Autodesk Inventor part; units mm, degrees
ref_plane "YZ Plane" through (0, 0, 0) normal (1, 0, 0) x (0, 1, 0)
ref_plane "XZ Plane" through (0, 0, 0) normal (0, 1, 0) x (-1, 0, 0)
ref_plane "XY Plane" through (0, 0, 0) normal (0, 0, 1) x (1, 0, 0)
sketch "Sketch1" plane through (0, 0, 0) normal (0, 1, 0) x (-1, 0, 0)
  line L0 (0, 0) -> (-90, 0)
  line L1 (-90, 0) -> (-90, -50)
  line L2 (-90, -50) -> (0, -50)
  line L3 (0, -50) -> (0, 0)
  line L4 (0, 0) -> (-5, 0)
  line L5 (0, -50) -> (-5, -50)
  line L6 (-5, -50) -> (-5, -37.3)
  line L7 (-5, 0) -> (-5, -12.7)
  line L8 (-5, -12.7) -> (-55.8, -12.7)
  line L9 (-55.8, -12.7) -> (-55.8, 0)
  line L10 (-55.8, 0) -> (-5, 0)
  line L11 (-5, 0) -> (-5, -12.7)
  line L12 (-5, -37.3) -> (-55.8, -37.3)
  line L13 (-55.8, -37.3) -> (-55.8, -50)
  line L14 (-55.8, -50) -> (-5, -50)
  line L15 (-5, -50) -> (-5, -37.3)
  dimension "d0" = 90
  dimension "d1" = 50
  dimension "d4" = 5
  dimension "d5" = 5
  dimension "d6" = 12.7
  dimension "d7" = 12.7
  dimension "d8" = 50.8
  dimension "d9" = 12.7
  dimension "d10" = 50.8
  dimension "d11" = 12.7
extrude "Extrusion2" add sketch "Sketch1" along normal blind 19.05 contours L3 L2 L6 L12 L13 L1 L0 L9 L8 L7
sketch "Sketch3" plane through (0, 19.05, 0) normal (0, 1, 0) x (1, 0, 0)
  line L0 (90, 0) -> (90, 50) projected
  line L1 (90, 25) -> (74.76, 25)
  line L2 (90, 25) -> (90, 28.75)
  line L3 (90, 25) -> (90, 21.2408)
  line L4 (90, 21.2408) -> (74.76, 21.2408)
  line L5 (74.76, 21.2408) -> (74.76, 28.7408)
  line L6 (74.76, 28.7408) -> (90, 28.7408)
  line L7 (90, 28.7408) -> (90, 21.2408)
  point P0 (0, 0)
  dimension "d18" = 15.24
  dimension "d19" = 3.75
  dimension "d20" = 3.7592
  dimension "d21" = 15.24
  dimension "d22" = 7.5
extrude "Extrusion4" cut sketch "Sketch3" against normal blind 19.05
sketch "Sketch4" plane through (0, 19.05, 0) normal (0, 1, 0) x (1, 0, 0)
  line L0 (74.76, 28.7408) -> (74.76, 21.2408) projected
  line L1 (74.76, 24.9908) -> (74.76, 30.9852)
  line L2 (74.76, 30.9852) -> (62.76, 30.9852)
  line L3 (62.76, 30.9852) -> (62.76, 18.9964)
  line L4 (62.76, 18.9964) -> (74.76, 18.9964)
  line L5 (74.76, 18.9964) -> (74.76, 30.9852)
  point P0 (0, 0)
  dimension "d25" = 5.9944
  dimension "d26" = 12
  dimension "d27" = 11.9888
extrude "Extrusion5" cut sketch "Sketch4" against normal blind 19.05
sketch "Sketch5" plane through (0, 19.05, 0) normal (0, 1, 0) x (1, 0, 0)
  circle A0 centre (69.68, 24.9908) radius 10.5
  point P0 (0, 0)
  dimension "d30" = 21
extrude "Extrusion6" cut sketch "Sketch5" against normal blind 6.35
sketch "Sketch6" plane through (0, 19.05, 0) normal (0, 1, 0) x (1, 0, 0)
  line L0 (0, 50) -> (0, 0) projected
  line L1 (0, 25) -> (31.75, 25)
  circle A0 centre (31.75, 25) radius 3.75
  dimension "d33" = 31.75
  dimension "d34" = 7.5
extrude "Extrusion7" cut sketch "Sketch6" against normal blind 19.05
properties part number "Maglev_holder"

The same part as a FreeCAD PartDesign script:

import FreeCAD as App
import Part
import Sketcher
from FreeCAD import Vector
Q = App.Units.Quantity


def add_polygon(sketch, points):
    """Adds a closed chain of lines whose ends are joined by coincident constraints."""
    first, n = sketch.GeometryCount, len(points)
    for a, b in zip(points, points[1:] + points[:1]):
        sketch.addGeometry(Part.LineSegment(App.Vector(*a, 0), App.Vector(*b, 0)), False)
    for i in range(n):
        sketch.addConstraint(Sketcher.Constraint("Coincident", first + i, 2, first + (i + 1) % n, 1))

doc = App.newDocument("Part")
body = doc.addObject("PartDesign::Body", "Body")

# Sketch on XZ plane
sketch1 = doc.addObject("Sketcher::SketchObject", "Sketch")
body.addObject(sketch1)
sketch1.AttachmentSupport = (doc.XZ_Plane, [""])
sketch1.MapMode = "FlatFace"
add_polygon(sketch1, [(0, -50), (0, 0), (5, 0), (5, -12.7), (55.8, -12.7), (55.8, 0), (90, 0), (90, -50), (55.8, -50), (55.8, -37.3), (5, -37.3), (5, -50)])  # lines 0-11
sketch1.addConstraint(Sketcher.Constraint("Vertical", 0))
sketch1.addConstraint(Sketcher.Constraint("Horizontal", 1))
sketch1.addConstraint(Sketcher.Constraint("Vertical", 2))
sketch1.addConstraint(Sketcher.Constraint("Horizontal", 3))
sketch1.addConstraint(Sketcher.Constraint("Vertical", 4))
sketch1.addConstraint(Sketcher.Constraint("Horizontal", 5))
sketch1.addConstraint(Sketcher.Constraint("Vertical", 6))
sketch1.addConstraint(Sketcher.Constraint("Horizontal", 7))
sketch1.addConstraint(Sketcher.Constraint("Vertical", 8))
sketch1.addConstraint(Sketcher.Constraint("Horizontal", 9))
sketch1.addConstraint(Sketcher.Constraint("Vertical", 10))
sketch1.addConstraint(Sketcher.Constraint("Horizontal", 11))
sketch1.addConstraint(Sketcher.Constraint("Coincident", 0, 2, -1, 1))
sketch1.addConstraint(Sketcher.Constraint("PointOnObject", 4, 2, -1))
sketch1.addConstraint(Sketcher.Constraint("Horizontal", 7, 2, 10, 2))
sketch1.addConstraint(Sketcher.Constraint("Vertical", 4, 2, 7, 2))
sketch1.addConstraint(Sketcher.Constraint("Vertical", 2, 2, 9, 2))
sketch1.addConstraint(Sketcher.Constraint("Equal", 4, 8))
sketch1.addConstraint(Sketcher.Constraint("DistanceX", 3, 1, 3, 2, Q("2 in")))
sketch1.addConstraint(Sketcher.Constraint("DistanceY", 2, 2, 2, 1, Q("0.5 in")))
sketch1.addConstraint(Sketcher.Constraint("DistanceY", 0, 1, 0, 2, Q("1.9685 in")))
sketch1.addConstraint(Sketcher.Constraint("DistanceX", 1, 1, 1, 2, 5.0))
sketch1.addConstraint(Sketcher.Constraint("DistanceX", -1, 1, 5, 2, Q("3.5433 in")))
pad1 = doc.addObject("PartDesign::Pad", "Pad")
body.addObject(pad1)
pad1.Profile = sketch1
pad1.Length = Q("0.75 in")
pad1.Reversed = True

# Sketch on XZ plane
sketch2 = doc.addObject("Sketcher::SketchObject", "Sketch001")
body.addObject(sketch2)
sketch2.AttachmentSupport = (doc.XZ_Plane, [""])
sketch2.MapMode = "FlatFace"
sketch2.AttachmentOffset = App.Placement(Vector(0, 0, -0.75 * 25.4), App.Rotation())
add_polygon(sketch2, [(74.76, -21.2408), (90, -21.2408), (90, -28.7408), (74.76, -28.7408)])  # lines 0-3
sketch2.addConstraint(Sketcher.Constraint("Horizontal", 0))
sketch2.addConstraint(Sketcher.Constraint("Vertical", 1))
sketch2.addConstraint(Sketcher.Constraint("Horizontal", 2))
sketch2.addConstraint(Sketcher.Constraint("Vertical", 3))
sketch2.addConstraint(Sketcher.Constraint("DistanceX", 0, 1, 0, 2, Q("0.6 in")))
sketch2.addConstraint(Sketcher.Constraint("DistanceY", 1, 2, 1, 1, 7.5))
sketch2.addConstraint(Sketcher.Constraint("DistanceX", -1, 1, 0, 2, Q("3.5433 in")))
sketch2.addConstraint(Sketcher.Constraint("DistanceY", 0, 2, -1, 1, 21.2408))
pocket1 = doc.addObject("PartDesign::Pocket", "Pocket")
body.addObject(pocket1)
pocket1.Profile = sketch2
pocket1.Length = Q("0.75 in")
pocket1.Reversed = True

# Sketch on XZ plane
sketch3 = doc.addObject("Sketcher::SketchObject", "Sketch002")
body.addObject(sketch3)
sketch3.AttachmentSupport = (doc.XZ_Plane, [""])
sketch3.MapMode = "FlatFace"
sketch3.AttachmentOffset = App.Placement(Vector(0, 0, -0.75 * 25.4), App.Rotation())
add_polygon(sketch3, [(74.76, -18.9964), (74.76, -30.9852), (62.76, -30.9852), (62.76, -18.9964)])  # lines 0-3
sketch3.addConstraint(Sketcher.Constraint("Vertical", 0))
sketch3.addConstraint(Sketcher.Constraint("Horizontal", 1))
sketch3.addConstraint(Sketcher.Constraint("Vertical", 2))
sketch3.addConstraint(Sketcher.Constraint("Horizontal", 3))
sketch3.addConstraint(Sketcher.Constraint("DistanceY", 0, 2, 0, 1, Q("0.472 in")))
sketch3.addConstraint(Sketcher.Constraint("DistanceX", 1, 2, 1, 1, 12.0))
sketch3.addConstraint(Sketcher.Constraint("DistanceX", -1, 1, 0, 2, Q("2.9433 in")))
sketch3.addConstraint(Sketcher.Constraint("DistanceY", 0, 2, -1, 1, Q("1.2199 in")))
pocket2 = doc.addObject("PartDesign::Pocket", "Pocket001")
body.addObject(pocket2)
pocket2.Profile = sketch3
pocket2.Length = Q("0.75 in")
pocket2.Reversed = True

# Sketch on XZ plane
sketch4 = doc.addObject("Sketcher::SketchObject", "Sketch003")
body.addObject(sketch4)
sketch4.AttachmentSupport = (doc.XZ_Plane, [""])
sketch4.MapMode = "FlatFace"
sketch4.AttachmentOffset = App.Placement(Vector(0, 0, -0.75 * 25.4), App.Rotation())
sketch4.addGeometry(Part.Circle(Vector(69.68, -24.9908, 0), Vector(0, 0, 1), 10.5), False)
sketch4.addConstraint(Sketcher.Constraint("Diameter", 0, 21.0))
sketch4.addConstraint(Sketcher.Constraint("DistanceX", -1, 1, 0, 3, Q("2.7433 in")))
sketch4.addConstraint(Sketcher.Constraint("DistanceY", 0, 3, -1, 1, Q("0.9839 in")))
pocket3 = doc.addObject("PartDesign::Pocket", "Pocket002")
body.addObject(pocket3)
pocket3.Profile = sketch4
pocket3.Length = Q("0.25 in")
pocket3.Reversed = True

# Sketch on XZ plane
sketch5 = doc.addObject("Sketcher::SketchObject", "Sketch004")
body.addObject(sketch5)
sketch5.AttachmentSupport = (doc.XZ_Plane, [""])
sketch5.MapMode = "FlatFace"
sketch5.AttachmentOffset = App.Placement(Vector(0, 0, -0.75 * 25.4), App.Rotation())
sketch5.addGeometry(Part.Circle(Vector(31.75, -25, 0), Vector(0, 0, 1), 3.75), False)
sketch5.addConstraint(Sketcher.Constraint("Diameter", 0, 7.5))
sketch5.addConstraint(Sketcher.Constraint("DistanceX", -1, 1, 0, 3, Q("1.25 in")))
sketch5.addConstraint(Sketcher.Constraint("DistanceY", 0, 3, -1, 1, 25.0))
pocket4 = doc.addObject("PartDesign::Pocket", "Pocket003")
body.addObject(pocket4)
pocket4.Profile = sketch5
pocket4.Length = Q("0.75 in")
pocket4.Reversed = True

doc.recompute()
